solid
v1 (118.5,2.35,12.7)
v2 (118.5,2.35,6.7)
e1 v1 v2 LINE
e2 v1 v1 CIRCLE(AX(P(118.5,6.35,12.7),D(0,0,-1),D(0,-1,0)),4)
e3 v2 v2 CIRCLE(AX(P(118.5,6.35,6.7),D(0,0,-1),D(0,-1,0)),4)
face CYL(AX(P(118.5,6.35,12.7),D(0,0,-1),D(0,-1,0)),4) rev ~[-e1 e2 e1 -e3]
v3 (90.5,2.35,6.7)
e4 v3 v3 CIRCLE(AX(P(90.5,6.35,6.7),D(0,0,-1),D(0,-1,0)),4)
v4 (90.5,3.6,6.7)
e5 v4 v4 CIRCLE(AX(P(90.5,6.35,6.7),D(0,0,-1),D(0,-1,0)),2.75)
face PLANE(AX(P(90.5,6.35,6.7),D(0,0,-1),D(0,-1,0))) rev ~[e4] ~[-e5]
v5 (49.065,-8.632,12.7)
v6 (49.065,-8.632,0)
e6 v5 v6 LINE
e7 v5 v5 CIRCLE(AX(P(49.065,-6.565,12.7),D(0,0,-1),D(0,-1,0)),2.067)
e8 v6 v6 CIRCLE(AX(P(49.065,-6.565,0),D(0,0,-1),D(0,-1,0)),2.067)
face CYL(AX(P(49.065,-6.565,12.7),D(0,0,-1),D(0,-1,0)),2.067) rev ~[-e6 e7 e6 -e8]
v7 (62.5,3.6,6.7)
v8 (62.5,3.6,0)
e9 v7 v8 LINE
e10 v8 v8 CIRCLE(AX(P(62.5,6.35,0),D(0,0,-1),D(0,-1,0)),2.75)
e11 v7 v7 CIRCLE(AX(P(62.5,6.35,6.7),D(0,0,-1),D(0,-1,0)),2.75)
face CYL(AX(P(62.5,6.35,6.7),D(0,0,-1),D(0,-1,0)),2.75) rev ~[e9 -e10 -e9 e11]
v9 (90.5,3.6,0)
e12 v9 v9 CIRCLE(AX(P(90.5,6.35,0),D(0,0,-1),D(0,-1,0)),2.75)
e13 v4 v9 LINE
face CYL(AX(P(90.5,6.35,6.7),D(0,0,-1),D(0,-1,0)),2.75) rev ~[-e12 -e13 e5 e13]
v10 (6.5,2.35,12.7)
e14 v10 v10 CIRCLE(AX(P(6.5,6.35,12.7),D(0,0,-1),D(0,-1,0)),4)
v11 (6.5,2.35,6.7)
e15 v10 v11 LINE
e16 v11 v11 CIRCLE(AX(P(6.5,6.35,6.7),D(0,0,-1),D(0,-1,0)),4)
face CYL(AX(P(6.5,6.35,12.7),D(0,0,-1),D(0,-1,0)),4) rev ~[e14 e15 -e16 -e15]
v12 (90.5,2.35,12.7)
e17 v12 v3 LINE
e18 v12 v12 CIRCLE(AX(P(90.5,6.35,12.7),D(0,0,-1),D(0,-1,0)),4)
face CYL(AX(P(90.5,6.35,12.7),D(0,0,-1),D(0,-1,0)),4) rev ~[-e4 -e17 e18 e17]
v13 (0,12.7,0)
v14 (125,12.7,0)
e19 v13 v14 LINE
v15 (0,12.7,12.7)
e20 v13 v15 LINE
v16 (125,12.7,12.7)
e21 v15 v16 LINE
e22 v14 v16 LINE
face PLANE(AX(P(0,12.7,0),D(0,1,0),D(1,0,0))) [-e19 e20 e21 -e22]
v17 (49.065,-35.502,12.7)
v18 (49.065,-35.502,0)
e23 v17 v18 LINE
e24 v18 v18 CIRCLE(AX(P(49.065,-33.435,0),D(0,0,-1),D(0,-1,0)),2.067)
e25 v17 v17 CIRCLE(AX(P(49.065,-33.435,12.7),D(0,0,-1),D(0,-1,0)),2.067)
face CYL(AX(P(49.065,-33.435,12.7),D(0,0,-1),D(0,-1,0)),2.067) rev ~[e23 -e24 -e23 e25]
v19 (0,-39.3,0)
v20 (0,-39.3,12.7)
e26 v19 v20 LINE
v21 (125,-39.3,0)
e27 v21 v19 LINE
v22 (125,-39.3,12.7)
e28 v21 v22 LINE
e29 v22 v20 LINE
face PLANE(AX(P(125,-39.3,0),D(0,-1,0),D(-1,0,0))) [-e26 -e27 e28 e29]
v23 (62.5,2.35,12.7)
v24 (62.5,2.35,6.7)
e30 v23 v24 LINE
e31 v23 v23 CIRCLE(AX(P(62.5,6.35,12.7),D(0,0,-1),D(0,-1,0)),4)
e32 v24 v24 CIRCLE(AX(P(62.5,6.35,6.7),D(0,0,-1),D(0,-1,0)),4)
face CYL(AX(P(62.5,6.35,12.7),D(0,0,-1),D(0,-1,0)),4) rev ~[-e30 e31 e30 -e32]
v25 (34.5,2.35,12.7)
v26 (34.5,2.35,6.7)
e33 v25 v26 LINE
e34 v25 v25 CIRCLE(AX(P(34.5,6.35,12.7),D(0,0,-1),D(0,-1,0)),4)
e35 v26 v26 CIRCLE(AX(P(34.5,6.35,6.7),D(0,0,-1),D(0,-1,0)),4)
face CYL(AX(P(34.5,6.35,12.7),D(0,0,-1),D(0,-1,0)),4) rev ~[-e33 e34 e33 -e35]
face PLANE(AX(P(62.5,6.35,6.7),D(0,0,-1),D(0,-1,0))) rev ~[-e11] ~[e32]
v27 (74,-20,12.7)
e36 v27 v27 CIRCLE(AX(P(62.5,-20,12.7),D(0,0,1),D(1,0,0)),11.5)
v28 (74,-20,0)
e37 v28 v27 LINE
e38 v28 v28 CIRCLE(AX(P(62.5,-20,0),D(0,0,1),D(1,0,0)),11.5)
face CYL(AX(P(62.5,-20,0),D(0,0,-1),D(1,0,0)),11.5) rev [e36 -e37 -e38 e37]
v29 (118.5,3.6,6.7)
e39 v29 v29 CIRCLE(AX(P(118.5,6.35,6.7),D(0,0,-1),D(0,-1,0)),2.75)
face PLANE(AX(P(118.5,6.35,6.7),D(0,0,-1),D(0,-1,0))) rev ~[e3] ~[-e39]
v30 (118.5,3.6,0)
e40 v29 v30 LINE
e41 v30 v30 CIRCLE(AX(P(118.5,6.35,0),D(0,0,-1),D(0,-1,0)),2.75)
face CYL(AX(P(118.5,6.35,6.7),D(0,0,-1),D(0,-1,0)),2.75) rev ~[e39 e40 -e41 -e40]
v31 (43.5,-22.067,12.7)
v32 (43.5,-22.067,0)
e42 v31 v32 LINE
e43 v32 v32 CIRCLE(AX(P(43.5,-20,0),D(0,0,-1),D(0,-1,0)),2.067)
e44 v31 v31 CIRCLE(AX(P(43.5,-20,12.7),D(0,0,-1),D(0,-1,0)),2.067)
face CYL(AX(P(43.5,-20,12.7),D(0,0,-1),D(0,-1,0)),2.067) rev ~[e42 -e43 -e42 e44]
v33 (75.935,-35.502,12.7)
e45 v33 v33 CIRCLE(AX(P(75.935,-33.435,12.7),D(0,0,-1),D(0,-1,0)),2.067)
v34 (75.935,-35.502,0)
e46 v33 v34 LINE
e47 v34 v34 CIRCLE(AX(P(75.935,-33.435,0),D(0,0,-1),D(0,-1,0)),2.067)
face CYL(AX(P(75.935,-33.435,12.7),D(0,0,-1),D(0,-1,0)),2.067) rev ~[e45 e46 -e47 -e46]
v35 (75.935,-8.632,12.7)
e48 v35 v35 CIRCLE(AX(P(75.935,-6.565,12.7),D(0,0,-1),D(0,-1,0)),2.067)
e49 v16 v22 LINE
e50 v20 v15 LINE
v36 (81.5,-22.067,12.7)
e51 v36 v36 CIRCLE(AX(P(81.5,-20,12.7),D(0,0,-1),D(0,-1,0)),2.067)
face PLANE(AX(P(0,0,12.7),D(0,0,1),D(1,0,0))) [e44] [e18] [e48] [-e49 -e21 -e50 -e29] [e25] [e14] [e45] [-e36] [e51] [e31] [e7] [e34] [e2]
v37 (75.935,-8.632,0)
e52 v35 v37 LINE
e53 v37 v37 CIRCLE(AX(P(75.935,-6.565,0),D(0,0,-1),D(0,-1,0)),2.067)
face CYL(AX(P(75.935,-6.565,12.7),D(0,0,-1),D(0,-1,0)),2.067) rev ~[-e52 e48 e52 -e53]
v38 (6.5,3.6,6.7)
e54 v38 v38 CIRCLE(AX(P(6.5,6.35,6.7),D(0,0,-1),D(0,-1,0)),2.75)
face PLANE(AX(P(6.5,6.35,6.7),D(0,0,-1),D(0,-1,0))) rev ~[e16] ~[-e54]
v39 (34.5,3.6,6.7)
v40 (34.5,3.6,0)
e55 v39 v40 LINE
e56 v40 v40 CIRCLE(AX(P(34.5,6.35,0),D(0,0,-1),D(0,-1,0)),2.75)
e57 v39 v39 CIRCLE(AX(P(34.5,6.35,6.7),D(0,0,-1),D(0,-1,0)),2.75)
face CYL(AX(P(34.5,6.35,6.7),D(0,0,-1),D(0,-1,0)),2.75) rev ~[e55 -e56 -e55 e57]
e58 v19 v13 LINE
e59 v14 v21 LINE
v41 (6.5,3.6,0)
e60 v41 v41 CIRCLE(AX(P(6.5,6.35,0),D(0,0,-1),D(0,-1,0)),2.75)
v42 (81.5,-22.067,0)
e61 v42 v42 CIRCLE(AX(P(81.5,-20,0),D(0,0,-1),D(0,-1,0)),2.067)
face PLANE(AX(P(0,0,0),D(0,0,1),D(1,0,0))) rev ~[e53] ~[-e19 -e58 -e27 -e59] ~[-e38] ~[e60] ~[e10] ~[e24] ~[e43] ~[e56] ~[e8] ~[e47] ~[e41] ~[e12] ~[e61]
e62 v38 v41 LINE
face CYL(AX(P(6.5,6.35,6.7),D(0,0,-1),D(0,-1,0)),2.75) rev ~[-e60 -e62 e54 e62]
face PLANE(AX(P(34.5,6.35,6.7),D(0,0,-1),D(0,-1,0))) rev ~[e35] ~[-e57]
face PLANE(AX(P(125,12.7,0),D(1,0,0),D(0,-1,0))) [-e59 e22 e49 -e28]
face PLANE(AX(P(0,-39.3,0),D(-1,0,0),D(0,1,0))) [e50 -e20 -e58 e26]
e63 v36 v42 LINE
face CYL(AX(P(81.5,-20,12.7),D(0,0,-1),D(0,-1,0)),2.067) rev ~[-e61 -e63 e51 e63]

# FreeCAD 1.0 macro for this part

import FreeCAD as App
import Part
import Sketcher
Q = App.Units.Quantity

doc = App.newDocument("Part")
body = doc.addObject("PartDesign::Body", "Body")

# Sketch on XY plane
sketch1 = doc.addObject("Sketcher::SketchObject", "Sketch")
body.addObject(sketch1)
sketch1.AttachmentSupport = (doc.XY_Plane, [""])
sketch1.MapMode = "FlatFace"
sketch1.addGeometry([
    Part.LineSegment(App.Vector(125, 13, 0), App.Vector(0, 13, 0)),  # 0
    Part.LineSegment(App.Vector(0, 13, 0), App.Vector(0, -39, 0)),  # 1
    Part.LineSegment(App.Vector(0, -39, 0), App.Vector(125, -39, 0)),  # 2
    Part.LineSegment(App.Vector(125, -39, 0), App.Vector(125, 13, 0)),  # 3
    Part.Circle(App.Vector(62, -20, 0), App.Vector(0, 0, 1), 12),  # 4
], False)
sketch1.addConstraint([
    Sketcher.Constraint("Coincident", 0, 2, 1, 1),
    Sketcher.Constraint("Coincident", 1, 2, 2, 1),
    Sketcher.Constraint("Coincident", 2, 2, 3, 1),
    Sketcher.Constraint("Coincident", 3, 2, 0, 1),
    Sketcher.Constraint("Horizontal", 0),
    Sketcher.Constraint("Vertical", 1),
    Sketcher.Constraint("Horizontal", 2),
    Sketcher.Constraint("Vertical", 3),
    Sketcher.Constraint("PointOnObject", 0, 2, -2),
    Sketcher.Constraint("Diameter", 4, Q("23 mm")),
    Sketcher.Constraint("DistanceX", 0, 2, 0, 1, Q("125 mm")),
    Sketcher.Constraint("DistanceY", 1, 2, 1, 1, Q("52 mm")),
    Sketcher.Constraint("DistanceY", 4, 3, -1, 1, Q("20 mm")),
    Sketcher.Constraint("DistanceX", -1, 1, 4, 3, Q("62.5 mm")),
    Sketcher.Constraint("DistanceY", -1, 1, 0, 2, Q("12.7 mm")),
])
pad1 = doc.addObject("PartDesign::Pad", "Pad")
body.addObject(pad1)
pad1.Profile = sketch1
pad1.Length = 12.7

# Sketch on XY plane
sketch2 = doc.addObject("Sketcher::SketchObject", "Sketch001")
body.addObject(sketch2)
sketch2.AttachmentSupport = (doc.XY_Plane, [""])
sketch2.MapMode = "FlatFace"
sketch2.AttachmentOffset = App.Placement(App.Vector(0, 0, 12.7), App.Rotation())
sketch2.addGeometry([
    Part.Circle(App.Vector(75.9, -33.4, 0), App.Vector(0, 0, 1), 2.1),  # 0
    Part.Circle(App.Vector(49.1, -33.4, 0), App.Vector(0, 0, 1), 2.1),  # 1
    Part.Circle(App.Vector(81.5, -20, 0), App.Vector(0, 0, 1), 2.1),  # 2
    Part.Circle(App.Vector(43.5, -20, 0), App.Vector(0, 0, 1), 2.1),  # 3
    Part.Circle(App.Vector(49.1, -6.6, 0), App.Vector(0, 0, 1), 2.1),  # 4
    Part.Circle(App.Vector(75.9, -6.6, 0), App.Vector(0, 0, 1), 2.1),  # 5
], False)
sketch2.addConstraint([
    Sketcher.Constraint("Equal", 0, 1),
    Sketcher.Constraint("Equal", 1, 2),
    Sketcher.Constraint("Equal", 2, 3),
    Sketcher.Constraint("Equal", 3, 4),
    Sketcher.Constraint("Equal", 4, 5),
    Sketcher.Constraint("Horizontal", 0, 3, 1, 3),
    Sketcher.Constraint("Horizontal", 2, 3, 3, 3),
    Sketcher.Constraint("Horizontal", 4, 3, 5, 3),
    Sketcher.Constraint("Vertical", 1, 3, 4, 3),
    Sketcher.Constraint("Vertical", 0, 3, 5, 3),
    Sketcher.Constraint("Diameter", 0, Q("4.134 mm")),
    Sketcher.Constraint("DistanceY", 2, 3, -1, 1, Q("20 mm")),
    Sketcher.Constraint("DistanceX", 3, 3, 2, 3, Q("38 mm")),
    Sketcher.Constraint("DistanceX", -1, 1, 2, 3, Q("81.5 mm")),
    Sketcher.Constraint("DistanceX", 1, 3, 0, 3, Q("26.87 mm")),
    Sketcher.Constraint("DistanceY", 1, 3, 4, 3, Q("26.87 mm")),
    Sketcher.Constraint("DistanceX", -1, 1, 0, 3, Q("75.935 mm")),
    Sketcher.Constraint("DistanceY", 0, 3, -1, 1, Q("33.435 mm")),
])
doc.recompute()
hole = doc.addObject("PartDesign::Hole", "Hole")
body.addObject(hole)
hole.Profile = sketch2
hole.ThreadType = "None"
hole.Diameter = 4.134
hole.DepthType = "ThroughAll"

# Sketch on XY plane
sketch3 = doc.addObject("Sketcher::SketchObject", "Sketch002")
body.addObject(sketch3)
sketch3.AttachmentSupport = (doc.XY_Plane, [""])
sketch3.MapMode = "FlatFace"
sketch3.AttachmentOffset = App.Placement(App.Vector(0, 0, 12.7), App.Rotation())
sketch3.addGeometry([
    Part.Circle(App.Vector(6.5, 6.3, 0), App.Vector(0, 0, 1), 2.8),  # 0
    Part.Circle(App.Vector(34.5, 6.3, 0), App.Vector(0, 0, 1), 2.8),  # 1
    Part.Circle(App.Vector(62.5, 6.3, 0), App.Vector(0, 0, 1), 2.8),  # 2
    Part.Circle(App.Vector(90.5, 6.3, 0), App.Vector(0, 0, 1), 2.8),  # 3
    Part.Circle(App.Vector(118.5, 6.3, 0), App.Vector(0, 0, 1), 2.8),  # 4
], False)
sketch3.addConstraint([
    Sketcher.Constraint("Equal", 0, 1),
    Sketcher.Constraint("Equal", 1, 2),
    Sketcher.Constraint("Equal", 2, 3),
    Sketcher.Constraint("Equal", 3, 4),
    Sketcher.Constraint("Horizontal", 0, 3, 1, 3),
    Sketcher.Constraint("Horizontal", 1, 3, 2, 3),
    Sketcher.Constraint("Horizontal", 2, 3, 3, 3),
    Sketcher.Constraint("Horizontal", 3, 3, 4, 3),
    Sketcher.Constraint("Diameter", 0, Q("5.5 mm")),
    Sketcher.Constraint("DistanceX", 0, 3, 1, 3, Q("28 mm")),
    Sketcher.Constraint("DistanceX", 1, 3, 2, 3, Q("28 mm")),
    Sketcher.Constraint("DistanceX", 2, 3, 3, 3, Q("28 mm")),
    Sketcher.Constraint("DistanceX", 3, 3, 4, 3, Q("28 mm")),
    Sketcher.Constraint("DistanceX", -1, 1, 0, 3, Q("6.5 mm")),
    Sketcher.Constraint("DistanceY", -1, 1, 0, 3, Q("6.35 mm")),
])
doc.recompute()
hole2 = doc.addObject("PartDesign::Hole", "Hole001")
body.addObject(hole2)
hole2.Profile = sketch3
hole2.ThreadType = "None"
hole2.Diameter = 5.5
hole2.DepthType = "ThroughAll"
hole2.HoleCutType = "Counterbore"
hole2.HoleCutDiameter = 8
hole2.HoleCutDepth = 6

doc.recompute()
